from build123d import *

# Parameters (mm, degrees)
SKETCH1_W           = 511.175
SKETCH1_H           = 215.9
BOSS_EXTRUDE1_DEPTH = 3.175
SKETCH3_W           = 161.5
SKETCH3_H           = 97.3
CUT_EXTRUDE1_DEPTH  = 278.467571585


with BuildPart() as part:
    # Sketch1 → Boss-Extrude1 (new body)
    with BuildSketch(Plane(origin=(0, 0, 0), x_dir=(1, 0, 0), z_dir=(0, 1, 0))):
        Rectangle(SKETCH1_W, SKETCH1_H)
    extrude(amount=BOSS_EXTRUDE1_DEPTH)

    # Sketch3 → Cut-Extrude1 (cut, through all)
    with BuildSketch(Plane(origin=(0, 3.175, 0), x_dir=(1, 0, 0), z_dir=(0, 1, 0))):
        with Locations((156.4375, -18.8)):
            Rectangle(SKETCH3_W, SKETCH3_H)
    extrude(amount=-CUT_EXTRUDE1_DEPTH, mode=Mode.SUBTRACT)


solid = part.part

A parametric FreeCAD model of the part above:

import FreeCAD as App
import Part
import Sketcher

V = App.Vector
Q = App.Units.Quantity


def add_polygon(sketch, points):
    """Adds a closed chain of lines whose ends are joined by coincident constraints."""
    first, n = sketch.GeometryCount, len(points)
    for a, b in zip(points, points[1:] + points[:1]):
        sketch.addGeometry(Part.LineSegment(App.Vector(*a, 0), App.Vector(*b, 0)), False)
    for i in range(n):
        sketch.addConstraint(Sketcher.Constraint("Coincident", first + i, 2, first + (i + 1) % n, 1))

doc = App.newDocument("Part")
body = doc.addObject("PartDesign::Body", "Body")

sketch1 = doc.addObject("Sketcher::SketchObject", "Sketch")
body.addObject(sketch1)
sketch1.AttachmentSupport = (doc.XZ_Plane, [""])
sketch1.MapMode = "FlatFace"
add_polygon(sketch1, [(-255.5875, -107.95), (-255.5875, 107.95), (255.5875, 107.95), (255.5875, -107.95)])
sketch1.addConstraint([
    Sketcher.Constraint("Vertical", 0),
    Sketcher.Constraint("Horizontal", 1),
    Sketcher.Constraint("Vertical", 2),
    Sketcher.Constraint("Horizontal", 3),
    Sketcher.Constraint("Symmetric", 0, 2, 2, 2, -1, 1),
    Sketcher.Constraint("DistanceY", 0, 1, 0, 2, Q("8.5 in")),
    Sketcher.Constraint("DistanceX", 1, 1, 1, 2, Q("20.125 in")),
])
pad1 = doc.addObject("PartDesign::Pad", "Pad")
body.addObject(pad1)
pad1.Profile = sketch1
pad1.Length = Q("0.125 in")
pad1.Reversed = True

sketch2 = doc.addObject("Sketcher::SketchObject", "Sketch001")
body.addObject(sketch2)
sketch2.AttachmentSupport = (doc.XZ_Plane, [""])
sketch2.MapMode = "FlatFace"
sketch2.AttachmentOffset = App.Placement(V(0, 0, -0.125 * 25.4), App.Rotation())
add_polygon(sketch2, [(75.6875, -29.85), (75.6875, 67.45), (237.1875, 67.45), (237.1875, -29.85)])
sketch2.addConstraint([
    Sketcher.Constraint("Vertical", 0),
    Sketcher.Constraint("Horizontal", 1),
    Sketcher.Constraint("Vertical", 2),
    Sketcher.Constraint("Horizontal", 3),
    Sketcher.Constraint("DistanceX", 1, 1, 1, 2, 161.5),
    Sketcher.Constraint("DistanceY", 0, 1, 0, 2, 97.3),
    Sketcher.Constraint("DistanceX", -1, 1, 0, 2, 75.6875),
    Sketcher.Constraint("DistanceY", -1, 1, 0, 2, 67.45),
])
pocket1 = doc.addObject("PartDesign::Pocket", "Pocket")
body.addObject(pocket1)
pocket1.Profile = sketch2
pocket1.Type = "ThroughAll"
pocket1.Reversed = True

doc.recompute()
